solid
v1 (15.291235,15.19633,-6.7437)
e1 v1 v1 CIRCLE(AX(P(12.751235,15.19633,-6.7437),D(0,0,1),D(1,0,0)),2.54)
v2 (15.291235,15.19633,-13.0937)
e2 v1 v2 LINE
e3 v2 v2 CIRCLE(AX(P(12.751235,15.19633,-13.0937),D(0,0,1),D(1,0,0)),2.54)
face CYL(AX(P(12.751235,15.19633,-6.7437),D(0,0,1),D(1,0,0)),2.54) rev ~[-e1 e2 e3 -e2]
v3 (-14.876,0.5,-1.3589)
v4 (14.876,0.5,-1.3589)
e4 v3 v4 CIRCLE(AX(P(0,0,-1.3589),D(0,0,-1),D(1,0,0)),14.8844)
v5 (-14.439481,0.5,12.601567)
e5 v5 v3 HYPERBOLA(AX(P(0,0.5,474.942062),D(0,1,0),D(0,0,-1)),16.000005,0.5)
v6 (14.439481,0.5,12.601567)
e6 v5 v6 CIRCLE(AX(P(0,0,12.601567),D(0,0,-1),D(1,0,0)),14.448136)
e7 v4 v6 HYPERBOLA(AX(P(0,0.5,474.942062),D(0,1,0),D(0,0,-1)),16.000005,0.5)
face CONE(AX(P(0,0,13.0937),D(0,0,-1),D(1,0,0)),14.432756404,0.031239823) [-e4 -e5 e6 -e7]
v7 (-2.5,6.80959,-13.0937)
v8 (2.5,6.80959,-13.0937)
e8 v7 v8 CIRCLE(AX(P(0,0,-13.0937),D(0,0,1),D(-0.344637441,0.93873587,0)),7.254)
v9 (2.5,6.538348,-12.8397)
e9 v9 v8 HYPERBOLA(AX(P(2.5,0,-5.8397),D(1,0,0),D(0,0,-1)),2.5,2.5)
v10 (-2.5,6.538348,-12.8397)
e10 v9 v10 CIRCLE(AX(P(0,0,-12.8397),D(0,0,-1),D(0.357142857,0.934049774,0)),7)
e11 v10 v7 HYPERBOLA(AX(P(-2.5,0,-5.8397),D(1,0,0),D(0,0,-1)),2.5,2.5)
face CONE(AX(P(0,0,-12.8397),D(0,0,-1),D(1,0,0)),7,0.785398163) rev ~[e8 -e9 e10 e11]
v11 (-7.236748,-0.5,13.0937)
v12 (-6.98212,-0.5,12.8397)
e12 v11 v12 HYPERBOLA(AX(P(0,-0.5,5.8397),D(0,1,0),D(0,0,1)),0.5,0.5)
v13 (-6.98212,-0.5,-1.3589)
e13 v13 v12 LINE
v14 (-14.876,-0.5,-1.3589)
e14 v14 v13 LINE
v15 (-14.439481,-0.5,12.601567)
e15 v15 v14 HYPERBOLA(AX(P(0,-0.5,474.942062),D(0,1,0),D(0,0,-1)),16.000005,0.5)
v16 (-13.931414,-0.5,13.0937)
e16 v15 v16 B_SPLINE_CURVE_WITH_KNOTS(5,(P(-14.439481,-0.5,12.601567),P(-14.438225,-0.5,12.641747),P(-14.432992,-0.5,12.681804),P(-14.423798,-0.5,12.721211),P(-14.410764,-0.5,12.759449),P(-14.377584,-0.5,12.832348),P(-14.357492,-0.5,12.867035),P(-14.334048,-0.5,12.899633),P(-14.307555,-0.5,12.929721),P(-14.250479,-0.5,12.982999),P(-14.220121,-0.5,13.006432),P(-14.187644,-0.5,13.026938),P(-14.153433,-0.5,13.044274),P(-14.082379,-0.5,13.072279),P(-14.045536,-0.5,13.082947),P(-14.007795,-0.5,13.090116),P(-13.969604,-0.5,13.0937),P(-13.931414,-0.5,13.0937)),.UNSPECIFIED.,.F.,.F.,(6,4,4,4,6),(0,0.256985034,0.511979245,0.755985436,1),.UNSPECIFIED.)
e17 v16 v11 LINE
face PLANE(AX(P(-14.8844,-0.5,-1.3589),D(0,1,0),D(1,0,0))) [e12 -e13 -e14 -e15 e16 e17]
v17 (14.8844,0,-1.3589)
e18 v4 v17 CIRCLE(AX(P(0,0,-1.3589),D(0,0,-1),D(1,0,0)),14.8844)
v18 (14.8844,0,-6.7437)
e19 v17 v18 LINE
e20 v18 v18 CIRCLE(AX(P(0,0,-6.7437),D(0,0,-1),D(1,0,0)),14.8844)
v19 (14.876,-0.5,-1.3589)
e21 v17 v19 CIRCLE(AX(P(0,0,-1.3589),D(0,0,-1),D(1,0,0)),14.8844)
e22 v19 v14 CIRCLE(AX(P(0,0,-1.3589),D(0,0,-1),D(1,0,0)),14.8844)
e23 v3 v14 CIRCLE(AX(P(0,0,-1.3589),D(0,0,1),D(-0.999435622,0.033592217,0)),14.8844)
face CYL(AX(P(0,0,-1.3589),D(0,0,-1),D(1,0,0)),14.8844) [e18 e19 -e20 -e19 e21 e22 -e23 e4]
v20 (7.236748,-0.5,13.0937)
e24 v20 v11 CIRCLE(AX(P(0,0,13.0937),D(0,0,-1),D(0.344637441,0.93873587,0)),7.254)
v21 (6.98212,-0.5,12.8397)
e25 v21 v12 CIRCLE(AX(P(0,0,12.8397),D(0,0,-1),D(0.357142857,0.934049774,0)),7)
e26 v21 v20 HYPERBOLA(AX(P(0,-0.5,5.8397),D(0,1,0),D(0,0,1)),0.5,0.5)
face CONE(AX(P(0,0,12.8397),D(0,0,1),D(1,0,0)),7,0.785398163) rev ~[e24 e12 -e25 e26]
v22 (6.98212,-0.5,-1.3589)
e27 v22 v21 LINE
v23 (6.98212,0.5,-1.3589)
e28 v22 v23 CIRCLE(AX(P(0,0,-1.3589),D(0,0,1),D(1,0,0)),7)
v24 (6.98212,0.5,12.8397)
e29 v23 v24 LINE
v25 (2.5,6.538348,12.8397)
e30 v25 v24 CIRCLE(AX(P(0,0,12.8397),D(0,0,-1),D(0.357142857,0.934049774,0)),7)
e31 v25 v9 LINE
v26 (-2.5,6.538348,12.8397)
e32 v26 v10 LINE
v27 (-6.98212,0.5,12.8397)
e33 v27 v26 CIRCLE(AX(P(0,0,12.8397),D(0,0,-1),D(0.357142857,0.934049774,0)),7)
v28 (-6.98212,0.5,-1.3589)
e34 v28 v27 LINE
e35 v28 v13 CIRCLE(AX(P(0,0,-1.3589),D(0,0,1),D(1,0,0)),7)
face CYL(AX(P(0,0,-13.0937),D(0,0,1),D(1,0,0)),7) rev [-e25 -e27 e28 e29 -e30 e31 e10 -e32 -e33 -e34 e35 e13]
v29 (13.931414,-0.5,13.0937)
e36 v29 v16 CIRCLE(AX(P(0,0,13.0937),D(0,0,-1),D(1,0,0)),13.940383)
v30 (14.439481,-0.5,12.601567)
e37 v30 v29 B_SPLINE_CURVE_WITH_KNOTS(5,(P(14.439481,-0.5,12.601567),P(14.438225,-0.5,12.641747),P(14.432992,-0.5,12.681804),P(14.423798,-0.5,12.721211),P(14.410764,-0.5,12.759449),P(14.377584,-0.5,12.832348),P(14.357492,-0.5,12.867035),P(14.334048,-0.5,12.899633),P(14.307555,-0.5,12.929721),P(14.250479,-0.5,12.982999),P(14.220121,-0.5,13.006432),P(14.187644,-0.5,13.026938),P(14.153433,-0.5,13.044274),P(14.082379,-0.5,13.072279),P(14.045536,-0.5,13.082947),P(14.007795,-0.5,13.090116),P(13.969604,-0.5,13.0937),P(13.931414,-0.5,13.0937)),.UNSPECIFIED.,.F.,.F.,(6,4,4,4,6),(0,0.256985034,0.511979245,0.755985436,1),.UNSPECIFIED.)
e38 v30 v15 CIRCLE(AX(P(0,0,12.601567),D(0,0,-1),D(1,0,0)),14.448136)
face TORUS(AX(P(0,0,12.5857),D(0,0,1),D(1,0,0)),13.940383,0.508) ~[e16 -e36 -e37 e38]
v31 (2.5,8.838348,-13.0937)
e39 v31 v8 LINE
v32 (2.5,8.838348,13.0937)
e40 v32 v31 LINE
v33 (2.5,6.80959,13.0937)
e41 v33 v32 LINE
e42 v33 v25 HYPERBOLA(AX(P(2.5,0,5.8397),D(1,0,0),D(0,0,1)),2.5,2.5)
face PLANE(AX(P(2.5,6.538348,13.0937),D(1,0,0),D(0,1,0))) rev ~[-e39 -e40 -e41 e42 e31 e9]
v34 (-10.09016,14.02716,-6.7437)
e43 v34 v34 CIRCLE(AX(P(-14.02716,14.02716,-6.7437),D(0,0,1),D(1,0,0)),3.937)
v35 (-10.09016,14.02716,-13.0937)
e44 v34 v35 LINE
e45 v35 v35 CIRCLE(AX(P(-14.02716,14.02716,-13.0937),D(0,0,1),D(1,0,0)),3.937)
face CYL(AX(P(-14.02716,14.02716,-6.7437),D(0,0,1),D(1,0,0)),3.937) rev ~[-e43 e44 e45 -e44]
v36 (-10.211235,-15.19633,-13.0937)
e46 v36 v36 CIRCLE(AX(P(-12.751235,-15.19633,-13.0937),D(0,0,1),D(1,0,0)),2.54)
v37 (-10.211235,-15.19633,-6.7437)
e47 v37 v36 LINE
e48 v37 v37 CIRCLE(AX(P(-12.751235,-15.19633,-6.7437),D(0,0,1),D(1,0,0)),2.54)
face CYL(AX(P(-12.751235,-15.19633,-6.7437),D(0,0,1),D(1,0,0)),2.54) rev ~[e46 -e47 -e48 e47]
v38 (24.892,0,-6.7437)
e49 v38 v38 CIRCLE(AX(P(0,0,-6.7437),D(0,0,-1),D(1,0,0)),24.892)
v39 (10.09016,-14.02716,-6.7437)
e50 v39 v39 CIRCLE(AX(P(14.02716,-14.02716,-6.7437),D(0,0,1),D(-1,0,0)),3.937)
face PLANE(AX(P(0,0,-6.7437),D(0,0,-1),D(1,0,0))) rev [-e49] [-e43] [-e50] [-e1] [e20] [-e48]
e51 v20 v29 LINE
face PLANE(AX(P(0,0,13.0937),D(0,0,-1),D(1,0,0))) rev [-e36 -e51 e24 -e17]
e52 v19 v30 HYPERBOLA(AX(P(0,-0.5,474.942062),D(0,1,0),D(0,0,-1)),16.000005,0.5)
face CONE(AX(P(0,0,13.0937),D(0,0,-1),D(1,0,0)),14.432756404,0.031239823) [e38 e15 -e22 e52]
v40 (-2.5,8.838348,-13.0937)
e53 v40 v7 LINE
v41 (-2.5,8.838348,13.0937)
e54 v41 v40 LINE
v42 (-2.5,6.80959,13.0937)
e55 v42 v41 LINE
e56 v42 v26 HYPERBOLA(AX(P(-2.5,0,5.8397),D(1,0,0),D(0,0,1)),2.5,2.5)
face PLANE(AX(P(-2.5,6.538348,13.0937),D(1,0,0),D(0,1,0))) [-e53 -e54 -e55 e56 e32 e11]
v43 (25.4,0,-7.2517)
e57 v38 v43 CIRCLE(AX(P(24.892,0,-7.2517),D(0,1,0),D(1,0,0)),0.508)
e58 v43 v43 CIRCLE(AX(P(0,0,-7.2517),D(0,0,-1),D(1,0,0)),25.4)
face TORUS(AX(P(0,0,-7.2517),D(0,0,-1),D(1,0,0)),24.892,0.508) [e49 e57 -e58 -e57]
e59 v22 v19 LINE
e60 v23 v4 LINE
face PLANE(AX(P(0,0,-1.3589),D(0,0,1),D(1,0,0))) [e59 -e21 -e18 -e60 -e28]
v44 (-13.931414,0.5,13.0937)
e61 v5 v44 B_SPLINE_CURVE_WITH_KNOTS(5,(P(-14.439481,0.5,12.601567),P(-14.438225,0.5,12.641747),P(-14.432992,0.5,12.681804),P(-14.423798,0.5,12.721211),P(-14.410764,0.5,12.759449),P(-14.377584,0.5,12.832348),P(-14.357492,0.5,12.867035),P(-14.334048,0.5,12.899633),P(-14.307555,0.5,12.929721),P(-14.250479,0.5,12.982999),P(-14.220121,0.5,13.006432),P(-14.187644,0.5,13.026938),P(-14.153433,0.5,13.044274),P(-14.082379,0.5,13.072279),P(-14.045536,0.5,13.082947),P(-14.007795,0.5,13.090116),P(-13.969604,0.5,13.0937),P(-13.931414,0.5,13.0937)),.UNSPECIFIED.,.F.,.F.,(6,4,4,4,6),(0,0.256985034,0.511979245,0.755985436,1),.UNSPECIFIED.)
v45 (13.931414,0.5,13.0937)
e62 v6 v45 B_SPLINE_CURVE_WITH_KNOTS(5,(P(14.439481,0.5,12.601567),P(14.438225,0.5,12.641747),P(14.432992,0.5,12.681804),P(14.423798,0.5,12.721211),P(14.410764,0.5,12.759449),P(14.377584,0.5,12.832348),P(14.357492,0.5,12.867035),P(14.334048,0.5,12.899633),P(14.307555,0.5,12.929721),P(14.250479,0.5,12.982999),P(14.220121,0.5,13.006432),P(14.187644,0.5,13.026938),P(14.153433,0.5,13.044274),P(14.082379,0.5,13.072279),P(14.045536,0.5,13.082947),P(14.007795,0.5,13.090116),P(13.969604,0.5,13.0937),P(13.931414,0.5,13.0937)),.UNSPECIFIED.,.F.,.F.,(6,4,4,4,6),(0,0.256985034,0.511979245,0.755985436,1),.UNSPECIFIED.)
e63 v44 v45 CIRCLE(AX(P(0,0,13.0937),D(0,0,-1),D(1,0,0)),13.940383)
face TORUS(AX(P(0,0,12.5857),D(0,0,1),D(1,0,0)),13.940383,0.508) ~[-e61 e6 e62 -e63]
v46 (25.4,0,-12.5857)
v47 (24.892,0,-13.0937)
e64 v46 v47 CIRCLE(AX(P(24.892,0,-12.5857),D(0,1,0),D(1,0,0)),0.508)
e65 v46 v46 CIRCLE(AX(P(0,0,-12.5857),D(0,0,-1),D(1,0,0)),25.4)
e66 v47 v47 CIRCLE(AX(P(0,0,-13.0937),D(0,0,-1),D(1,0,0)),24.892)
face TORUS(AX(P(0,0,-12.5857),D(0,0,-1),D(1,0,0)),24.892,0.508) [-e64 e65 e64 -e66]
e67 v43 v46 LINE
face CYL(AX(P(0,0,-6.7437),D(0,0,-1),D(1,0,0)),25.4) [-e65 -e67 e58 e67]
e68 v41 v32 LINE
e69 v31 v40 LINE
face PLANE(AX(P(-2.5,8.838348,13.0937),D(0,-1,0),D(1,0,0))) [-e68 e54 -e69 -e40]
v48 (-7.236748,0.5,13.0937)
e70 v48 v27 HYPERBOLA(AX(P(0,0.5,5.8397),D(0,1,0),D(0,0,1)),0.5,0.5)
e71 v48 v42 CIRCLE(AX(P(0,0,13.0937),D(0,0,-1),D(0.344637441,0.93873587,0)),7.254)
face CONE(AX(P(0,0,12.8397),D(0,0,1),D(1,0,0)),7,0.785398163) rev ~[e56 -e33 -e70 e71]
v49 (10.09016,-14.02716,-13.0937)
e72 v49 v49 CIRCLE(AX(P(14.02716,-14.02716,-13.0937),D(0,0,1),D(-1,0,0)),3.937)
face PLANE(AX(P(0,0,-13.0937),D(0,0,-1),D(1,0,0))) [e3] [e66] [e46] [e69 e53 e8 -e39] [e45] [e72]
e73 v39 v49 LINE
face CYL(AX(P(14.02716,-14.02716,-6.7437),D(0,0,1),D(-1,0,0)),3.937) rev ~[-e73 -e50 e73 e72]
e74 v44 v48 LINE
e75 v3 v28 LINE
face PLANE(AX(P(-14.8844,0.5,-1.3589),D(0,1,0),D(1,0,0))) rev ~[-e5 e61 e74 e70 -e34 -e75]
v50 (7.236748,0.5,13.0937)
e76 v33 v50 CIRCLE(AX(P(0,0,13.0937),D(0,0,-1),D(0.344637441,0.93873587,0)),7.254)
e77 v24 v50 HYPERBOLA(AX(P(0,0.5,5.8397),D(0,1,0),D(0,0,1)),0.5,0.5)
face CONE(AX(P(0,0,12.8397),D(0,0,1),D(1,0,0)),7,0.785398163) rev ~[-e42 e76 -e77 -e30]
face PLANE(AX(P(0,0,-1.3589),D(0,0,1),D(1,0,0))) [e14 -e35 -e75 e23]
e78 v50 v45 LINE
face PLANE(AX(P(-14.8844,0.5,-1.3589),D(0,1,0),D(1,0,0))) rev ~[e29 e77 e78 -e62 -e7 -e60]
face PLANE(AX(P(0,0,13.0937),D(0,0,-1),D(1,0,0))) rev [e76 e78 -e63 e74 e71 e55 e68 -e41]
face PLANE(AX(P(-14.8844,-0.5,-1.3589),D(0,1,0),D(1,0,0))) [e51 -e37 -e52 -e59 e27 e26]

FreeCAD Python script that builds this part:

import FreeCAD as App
import Part
import Sketcher
from FreeCAD import Vector
Q = App.Units.Quantity


def edges_at(feature, points):
    """Names of the edges that pass closest to the given points."""
    edges = feature.Shape.Edges
    near = lambda p: min(range(len(edges)), key=lambda i: edges[i].distToShape(Part.Vertex(*p))[0])
    return sorted({f"Edge{near(p) + 1}" for p in points})


def add_polygon(sketch, points):
    """Adds a closed chain of lines whose ends are joined by coincident constraints."""
    first, n = sketch.GeometryCount, len(points)
    for a, b in zip(points, points[1:] + points[:1]):
        sketch.addGeometry(Part.LineSegment(App.Vector(*a, 0), App.Vector(*b, 0)), False)
    for i in range(n):
        sketch.addConstraint(Sketcher.Constraint("Coincident", first + i, 2, first + (i + 1) % n, 1))

doc = App.newDocument("Part")
body = doc.addObject("PartDesign::Body", "Body")

# Sketch on YZ plane
sketch1 = body.newObject("Sketcher::SketchObject", "Sketch")
sketch1.AttachmentSupport = (doc.getObject("YZ_Plane"), [""])
sketch1.MapMode = "FlatFace"
add_polygon(sketch1, [(14, 13), (7, 13), (7, -13), (25, -13), (25, -7), (15, -7), (15, -1)])  # lines 0-6
sketch1.addConstraint([
    Sketcher.Constraint("Horizontal", 0),
    Sketcher.Constraint("Vertical", 1),
    Sketcher.Constraint("Horizontal", 2),
    Sketcher.Constraint("Vertical", 3),
    Sketcher.Constraint("Horizontal", 4),
    Sketcher.Constraint("Vertical", 5),
    Sketcher.Constraint("DistanceX", -1, 1, 2, 2, Q("1 in")),
    Sketcher.Constraint("DistanceY", 3, 1, 3, 2, Q("0.25 in")),
    Sketcher.Constraint("DistanceX", 4, 2, 4, 1, Q("0.414 in")),
    Sketcher.Constraint("DistanceY", 1, 2, 1, 1, Q("1.031 in")),
    Sketcher.Constraint("DistanceY", 5, 1, 5, 2, Q("0.212 in")),
    Sketcher.Constraint("DistanceX", 2, 1, 2, 2, 18.4),
    Sketcher.Constraint("DistanceY", -1, 1, 0, 2, Q("0.5155 in")),
    Sketcher.Constraint("DistanceX", 0, 2, 0, 1, 7.432756),
])
revolution = body.newObject("PartDesign::Revolution", "Revolution")
revolution.Profile = sketch1
revolution.ReferenceAxis = (sketch1, ["V_Axis"])
revolution.Angle = 360
doc.recompute()

fillet = body.newObject("PartDesign::Fillet", "Fillet")
fillet.Base = (revolution, edges_at(revolution, [(-25.4, 0, -13.094), (-25.4, 0, -6.744)]))
fillet.Radius = Q("0.02 in")
doc.recompute()

fillet2 = body.newObject("PartDesign::Fillet", "Fillet001")
fillet2.Base = (fillet, edges_at(fillet, [(-14.433, 0, 13.094)]))
fillet2.Radius = Q("0.02 in")
doc.recompute()

chamfer = body.newObject("PartDesign::Chamfer", "Chamfer")
chamfer.Base = (fillet2, edges_at(fillet2, [(-7, 0, -13.094), (-7, 0, 13.094)]))
chamfer.Size = Q("0.01 in")

# Sketch on XY plane
sketch2 = body.newObject("Sketcher::SketchObject", "Sketch001")
sketch2.AttachmentSupport = (doc.getObject("XY_Plane"), [""])
sketch2.MapMode = "FlatFace"
sketch2.AttachmentOffset = App.Placement(Vector(0, 0, -0.2655 * 25.4), App.Rotation())
sketch2.addGeometry([
    Part.Circle(Vector(12.8, 15.2, 0), Vector(0, 0, 1), 2.5),
    Part.Circle(Vector(-12.8, -15.2, 0), Vector(0, 0, 1), 2.5),
], False)
sketch2.addConstraint([
    Sketcher.Constraint("Equal", 0, 1),
    Sketcher.Constraint("Symmetric", 0, 3, 1, 3, -1, 1),
    Sketcher.Constraint("Diameter", 0, Q("0.2 in")),
    Sketcher.Constraint("DistanceY", -1, 1, 0, 3, 15.19633),
    Sketcher.Constraint("DistanceX", 1, 3, 0, 3, 25.50247),
])
pocket1 = body.newObject("PartDesign::Pocket", "Pocket")
pocket1.Profile = sketch2
pocket1.Type = "ThroughAll"

# Sketch on XY plane
sketch3 = body.newObject("Sketcher::SketchObject", "Sketch002")
sketch3.AttachmentSupport = (doc.getObject("XY_Plane"), [""])
sketch3.MapMode = "FlatFace"
sketch3.AttachmentOffset = App.Placement(Vector(0, 0, -0.2655 * 25.4), App.Rotation())
sketch3.addGeometry(Part.Circle(Vector(-14, 14, 0), Vector(0, 0, 1), 3.9), False)
sketch3.addConstraint([
    Sketcher.Constraint("Diameter", 0, Q("0.31 in")),
    Sketcher.Constraint("DistanceX", 0, 3, -1, 1, 14.02716),
    Sketcher.Constraint("DistanceY", -1, 1, 0, 3, 14.02716),
])
pocket2 = body.newObject("PartDesign::Pocket", "Pocket001")
pocket2.Profile = sketch3
pocket2.Type = "ThroughAll"
doc.recompute()

polarpattern = body.newObject("PartDesign::PolarPattern", "PolarPattern")
polarpattern.Originals = [pocket2]
polarpattern.Axis = (doc.getObject("Z_Axis"), [""])
polarpattern.Angle = 360
polarpattern.Occurrences = 2
body.Tip = polarpattern

# Sketch on XY plane
sketch4 = body.newObject("Sketcher::SketchObject", "Sketch003")
sketch4.AttachmentSupport = (doc.getObject("XY_Plane"), [""])
sketch4.MapMode = "FlatFace"
sketch4.AttachmentOffset = App.Placement(Vector(0, 0, 0.5155 * 25.4), App.Rotation())
add_polygon(sketch4, [(-2.5, 8.8), (-2.5, 6.5), (2.5, 6.5), (2.5, 8.8)])  # lines 0-3
sketch4.addConstraint([
    Sketcher.Constraint("Vertical", 0),
    Sketcher.Constraint("Horizontal", 1),
    Sketcher.Constraint("Vertical", 2),
    Sketcher.Constraint("Horizontal", 3),
    Sketcher.Constraint("DistanceX", 1, 1, 1, 2, 5.0),
    Sketcher.Constraint("DistanceY", 0, 2, 0, 1, 2.3),
    Sketcher.Constraint("DistanceX", 0, 2, -1, 1, 2.5),
    Sketcher.Constraint("DistanceY", -1, 1, 0, 2, 6.538348),
])
pocket3 = body.newObject("PartDesign::Pocket", "Pocket002")
pocket3.Profile = sketch4
pocket3.Type = "ThroughAll"

# Sketch on XY plane
sketch5 = body.newObject("Sketcher::SketchObject", "Sketch004")
sketch5.AttachmentSupport = (doc.getObject("XY_Plane"), [""])
sketch5.MapMode = "FlatFace"
sketch5.AttachmentOffset = App.Placement(Vector(0, 0, -0.0535 * 25.4), App.Rotation())
add_polygon(sketch5, [(-14.9, 0.5), (-14.9, -0.5), (14.9, -0.5), (14.9, 0.5)])  # lines 0-3
sketch5.addConstraint([
    Sketcher.Constraint("Vertical", 0),
    Sketcher.Constraint("Horizontal", 1),
    Sketcher.Constraint("Vertical", 2),
    Sketcher.Constraint("Horizontal", 3),
    Sketcher.Constraint("Symmetric", 0, 2, 2, 2, -1, 1),
    Sketcher.Constraint("DistanceX", 1, 1, 1, 2, Q("1.172 in")),
    Sketcher.Constraint("DistanceY", 0, 2, 0, 1, 1.0),
])
pocket4 = body.newObject("PartDesign::Pocket", "Pocket003")
pocket4.Profile = sketch5
pocket4.Length = Q("0.569 in")
pocket4.Reversed = True

doc.recompute()
